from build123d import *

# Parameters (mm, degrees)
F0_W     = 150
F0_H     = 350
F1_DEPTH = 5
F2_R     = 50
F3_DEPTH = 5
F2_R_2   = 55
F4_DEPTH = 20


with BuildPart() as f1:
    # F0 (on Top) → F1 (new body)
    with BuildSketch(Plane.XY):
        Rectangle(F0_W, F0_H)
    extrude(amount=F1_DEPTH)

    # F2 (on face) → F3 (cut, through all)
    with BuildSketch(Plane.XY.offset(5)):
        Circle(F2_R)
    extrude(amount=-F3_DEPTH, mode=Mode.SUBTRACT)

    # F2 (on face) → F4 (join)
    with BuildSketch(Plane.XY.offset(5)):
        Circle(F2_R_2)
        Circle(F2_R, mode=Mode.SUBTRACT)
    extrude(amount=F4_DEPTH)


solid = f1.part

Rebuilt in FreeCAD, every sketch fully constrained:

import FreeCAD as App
import Part
import Sketcher

V = App.Vector


def add_polygon(sketch, points):
    """Adds a closed chain of lines whose ends are joined by coincident constraints."""
    first, n = sketch.GeometryCount, len(points)
    for a, b in zip(points, points[1:] + points[:1]):
        sketch.addGeometry(Part.LineSegment(App.Vector(*a, 0), App.Vector(*b, 0)), False)
    for i in range(n):
        sketch.addConstraint(Sketcher.Constraint("Coincident", first + i, 2, first + (i + 1) % n, 1))

doc = App.newDocument("Part")
body = doc.addObject("PartDesign::Body", "Body")

# Sketch on XY plane
sketch1 = body.newObject("Sketcher::SketchObject", "Sketch")
sketch1.AttachmentSupport = (doc.getObject("XY_Plane"), [""])
sketch1.MapMode = "FlatFace"
add_polygon(sketch1, [(-75, 175), (-75, -175), (75, -175), (75, 175)])  # lines 0-3
sketch1.addConstraint(Sketcher.Constraint("Vertical", 0))
sketch1.addConstraint(Sketcher.Constraint("Horizontal", 1))
sketch1.addConstraint(Sketcher.Constraint("Vertical", 2))
sketch1.addConstraint(Sketcher.Constraint("Horizontal", 3))
sketch1.addConstraint(Sketcher.Constraint("Symmetric", 0, 2, 2, 2, -1, 1))
sketch1.addConstraint(Sketcher.Constraint("DistanceX", 1, 1, 1, 2, 150.0))
sketch1.addConstraint(Sketcher.Constraint("DistanceY", 0, 2, 0, 1, 350.0))
pad1 = body.newObject("PartDesign::Pad", "Pad")
pad1.Profile = sketch1
pad1.Length = 5

# Sketch on XY plane
sketch2 = body.newObject("Sketcher::SketchObject", "Sketch001")
sketch2.AttachmentSupport = (doc.getObject("XY_Plane"), [""])
sketch2.MapMode = "FlatFace"
sketch2.AttachmentOffset = App.Placement(V(0, 0, 5), App.Rotation())
sketch2.addGeometry(Part.Circle(V(0, 0, 0), V(0, 0, 1), 50), False)
sketch2.addConstraint(Sketcher.Constraint("Coincident", 0, 3, -1, 1))
sketch2.addConstraint(Sketcher.Constraint("Diameter", 0, 100.0))
pocket1 = body.newObject("PartDesign::Pocket", "Pocket")
pocket1.Profile = sketch2
pocket1.Type = "ThroughAll"

# Sketch on XY plane
sketch3 = body.newObject("Sketcher::SketchObject", "Sketch002")
sketch3.AttachmentSupport = (doc.getObject("XY_Plane"), [""])
sketch3.MapMode = "FlatFace"
sketch3.AttachmentOffset = App.Placement(V(0, 0, 5), App.Rotation())
sketch3.addGeometry(Part.Circle(V(0, 0, 0), V(0, 0, 1), 55), False)
sketch3.addGeometry(Part.Circle(V(0, 0, 0), V(0, 0, 1), 50), False)
sketch3.addConstraint(Sketcher.Constraint("Coincident", 0, 3, -1, 1))
sketch3.addConstraint(Sketcher.Constraint("Coincident", 1, 3, -1, 1))
sketch3.addConstraint(Sketcher.Constraint("Diameter", 0, 110.0))
sketch3.addConstraint(Sketcher.Constraint("Diameter", 1, 100.0))
pad2 = body.newObject("PartDesign::Pad", "Pad001")
pad2.Profile = sketch3
pad2.Length = 20

doc.recompute()
